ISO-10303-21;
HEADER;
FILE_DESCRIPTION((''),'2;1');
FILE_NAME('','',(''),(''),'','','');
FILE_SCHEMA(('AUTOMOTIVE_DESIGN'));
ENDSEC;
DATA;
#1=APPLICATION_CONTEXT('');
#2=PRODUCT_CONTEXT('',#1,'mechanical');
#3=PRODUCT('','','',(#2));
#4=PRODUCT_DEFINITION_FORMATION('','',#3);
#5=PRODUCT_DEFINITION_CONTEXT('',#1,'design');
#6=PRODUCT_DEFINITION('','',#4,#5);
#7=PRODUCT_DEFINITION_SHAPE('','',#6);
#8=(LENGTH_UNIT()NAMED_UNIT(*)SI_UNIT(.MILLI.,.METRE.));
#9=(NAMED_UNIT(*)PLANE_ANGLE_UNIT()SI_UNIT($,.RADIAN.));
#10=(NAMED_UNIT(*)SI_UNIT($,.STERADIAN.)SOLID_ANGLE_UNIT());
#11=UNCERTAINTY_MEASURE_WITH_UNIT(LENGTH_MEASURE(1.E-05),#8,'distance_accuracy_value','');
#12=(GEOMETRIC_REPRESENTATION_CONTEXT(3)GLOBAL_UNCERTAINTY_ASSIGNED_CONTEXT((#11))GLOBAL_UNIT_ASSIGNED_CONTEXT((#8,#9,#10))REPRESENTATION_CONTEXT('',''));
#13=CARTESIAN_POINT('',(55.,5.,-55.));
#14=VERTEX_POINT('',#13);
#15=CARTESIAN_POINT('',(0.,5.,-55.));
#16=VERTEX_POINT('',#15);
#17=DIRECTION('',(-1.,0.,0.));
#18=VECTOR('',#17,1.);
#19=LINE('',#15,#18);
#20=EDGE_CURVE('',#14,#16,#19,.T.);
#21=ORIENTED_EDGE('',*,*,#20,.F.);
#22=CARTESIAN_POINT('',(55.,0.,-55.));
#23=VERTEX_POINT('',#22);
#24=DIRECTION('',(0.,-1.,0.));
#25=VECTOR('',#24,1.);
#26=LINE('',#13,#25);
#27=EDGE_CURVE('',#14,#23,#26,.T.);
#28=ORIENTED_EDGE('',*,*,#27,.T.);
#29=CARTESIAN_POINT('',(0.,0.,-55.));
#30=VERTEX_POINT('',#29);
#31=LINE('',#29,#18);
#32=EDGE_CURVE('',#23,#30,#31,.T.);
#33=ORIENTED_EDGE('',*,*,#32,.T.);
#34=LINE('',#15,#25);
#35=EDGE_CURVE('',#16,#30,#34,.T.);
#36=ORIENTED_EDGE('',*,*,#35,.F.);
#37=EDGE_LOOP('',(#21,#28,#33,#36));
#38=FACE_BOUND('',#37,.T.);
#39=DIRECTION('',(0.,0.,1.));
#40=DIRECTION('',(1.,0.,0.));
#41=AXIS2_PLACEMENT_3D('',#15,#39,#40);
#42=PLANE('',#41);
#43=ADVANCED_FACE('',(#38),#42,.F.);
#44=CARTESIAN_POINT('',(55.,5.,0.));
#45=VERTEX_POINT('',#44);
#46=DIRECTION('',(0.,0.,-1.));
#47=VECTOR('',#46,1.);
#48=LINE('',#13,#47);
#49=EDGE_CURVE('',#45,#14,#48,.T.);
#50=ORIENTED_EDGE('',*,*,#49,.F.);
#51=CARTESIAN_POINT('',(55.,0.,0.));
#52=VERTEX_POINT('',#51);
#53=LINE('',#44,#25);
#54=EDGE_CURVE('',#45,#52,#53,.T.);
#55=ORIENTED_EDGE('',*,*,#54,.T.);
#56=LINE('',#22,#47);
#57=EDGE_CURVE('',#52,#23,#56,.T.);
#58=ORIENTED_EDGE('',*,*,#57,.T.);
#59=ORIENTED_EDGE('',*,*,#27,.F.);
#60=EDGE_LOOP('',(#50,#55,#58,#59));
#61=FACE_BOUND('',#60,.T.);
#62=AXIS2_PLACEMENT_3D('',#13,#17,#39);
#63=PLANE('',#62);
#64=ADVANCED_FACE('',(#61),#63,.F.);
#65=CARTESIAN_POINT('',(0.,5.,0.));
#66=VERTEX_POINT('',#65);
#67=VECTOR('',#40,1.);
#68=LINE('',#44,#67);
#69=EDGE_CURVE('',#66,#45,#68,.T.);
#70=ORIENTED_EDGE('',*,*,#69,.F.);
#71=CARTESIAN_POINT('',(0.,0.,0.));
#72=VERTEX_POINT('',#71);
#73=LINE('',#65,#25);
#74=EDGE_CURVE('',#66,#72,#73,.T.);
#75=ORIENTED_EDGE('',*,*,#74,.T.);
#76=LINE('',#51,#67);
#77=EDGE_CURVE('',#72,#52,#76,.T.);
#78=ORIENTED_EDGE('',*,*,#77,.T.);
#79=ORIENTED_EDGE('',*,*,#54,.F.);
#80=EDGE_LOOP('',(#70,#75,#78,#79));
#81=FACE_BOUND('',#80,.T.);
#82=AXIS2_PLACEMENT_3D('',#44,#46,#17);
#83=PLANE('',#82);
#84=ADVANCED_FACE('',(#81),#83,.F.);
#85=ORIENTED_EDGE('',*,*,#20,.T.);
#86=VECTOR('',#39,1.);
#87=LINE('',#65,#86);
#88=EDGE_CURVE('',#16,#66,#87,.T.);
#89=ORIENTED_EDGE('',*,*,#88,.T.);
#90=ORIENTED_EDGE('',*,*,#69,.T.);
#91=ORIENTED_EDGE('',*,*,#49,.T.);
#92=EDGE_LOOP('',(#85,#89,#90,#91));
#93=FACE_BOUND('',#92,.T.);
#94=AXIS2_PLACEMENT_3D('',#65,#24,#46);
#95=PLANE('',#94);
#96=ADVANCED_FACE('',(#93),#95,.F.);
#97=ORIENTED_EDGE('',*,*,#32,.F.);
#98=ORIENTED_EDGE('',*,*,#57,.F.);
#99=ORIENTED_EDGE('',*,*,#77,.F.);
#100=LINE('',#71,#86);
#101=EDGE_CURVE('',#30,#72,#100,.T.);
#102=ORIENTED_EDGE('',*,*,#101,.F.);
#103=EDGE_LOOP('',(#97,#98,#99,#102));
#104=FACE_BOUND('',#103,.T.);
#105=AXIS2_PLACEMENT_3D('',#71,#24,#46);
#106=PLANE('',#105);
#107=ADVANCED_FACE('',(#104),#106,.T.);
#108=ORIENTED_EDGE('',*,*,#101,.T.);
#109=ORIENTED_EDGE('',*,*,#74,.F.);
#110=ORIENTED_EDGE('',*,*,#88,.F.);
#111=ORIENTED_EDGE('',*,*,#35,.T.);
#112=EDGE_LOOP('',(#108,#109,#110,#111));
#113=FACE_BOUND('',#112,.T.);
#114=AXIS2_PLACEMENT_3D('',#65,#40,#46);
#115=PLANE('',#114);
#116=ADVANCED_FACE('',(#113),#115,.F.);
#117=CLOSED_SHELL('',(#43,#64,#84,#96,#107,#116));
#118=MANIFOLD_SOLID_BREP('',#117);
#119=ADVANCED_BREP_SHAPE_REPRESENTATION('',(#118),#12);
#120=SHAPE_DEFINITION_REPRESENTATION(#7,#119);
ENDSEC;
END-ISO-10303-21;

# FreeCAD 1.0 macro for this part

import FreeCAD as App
import Part
import Sketcher
from FreeCAD import Vector

doc = App.newDocument("Part")
body = doc.addObject("PartDesign::Body", "Body")

sketch1 = body.newObject("Sketcher::SketchObject", "Sketch")
sketch1.AttachmentSupport = (doc.getObject("XZ_Plane"), [""])
sketch1.MapMode = "FlatFace"
sketch1.addGeometry([
    Part.LineSegment(Vector(0, -55, 0), Vector(0, 0, 0)),
    Part.LineSegment(Vector(0, 0, 0), Vector(55, 0, 0)),
    Part.LineSegment(Vector(55, 0, 0), Vector(55, -55, 0)),
    Part.LineSegment(Vector(55, -55, 0), Vector(0, -55, 0)),
], False)
sketch1.addConstraint([
    Sketcher.Constraint("Coincident", 0, 2, 1, 1),
    Sketcher.Constraint("Coincident", 1, 2, 2, 1),
    Sketcher.Constraint("Coincident", 2, 2, 3, 1),
    Sketcher.Constraint("Coincident", 3, 2, 0, 1),
    Sketcher.Constraint("Vertical", 0),
    Sketcher.Constraint("Horizontal", 1),
    Sketcher.Constraint("Vertical", 2),
    Sketcher.Constraint("Horizontal", 3),
    Sketcher.Constraint("Coincident", 0, 2, -1, 1),
    Sketcher.Constraint("Equal", 3, 0),
    Sketcher.Constraint("DistanceX", 1, 1, 1, 2, 55.0),
])
pad1 = body.newObject("PartDesign::Pad", "Pad")
pad1.Profile = sketch1
pad1.Length = 5
pad1.Reversed = True

doc.recompute()
